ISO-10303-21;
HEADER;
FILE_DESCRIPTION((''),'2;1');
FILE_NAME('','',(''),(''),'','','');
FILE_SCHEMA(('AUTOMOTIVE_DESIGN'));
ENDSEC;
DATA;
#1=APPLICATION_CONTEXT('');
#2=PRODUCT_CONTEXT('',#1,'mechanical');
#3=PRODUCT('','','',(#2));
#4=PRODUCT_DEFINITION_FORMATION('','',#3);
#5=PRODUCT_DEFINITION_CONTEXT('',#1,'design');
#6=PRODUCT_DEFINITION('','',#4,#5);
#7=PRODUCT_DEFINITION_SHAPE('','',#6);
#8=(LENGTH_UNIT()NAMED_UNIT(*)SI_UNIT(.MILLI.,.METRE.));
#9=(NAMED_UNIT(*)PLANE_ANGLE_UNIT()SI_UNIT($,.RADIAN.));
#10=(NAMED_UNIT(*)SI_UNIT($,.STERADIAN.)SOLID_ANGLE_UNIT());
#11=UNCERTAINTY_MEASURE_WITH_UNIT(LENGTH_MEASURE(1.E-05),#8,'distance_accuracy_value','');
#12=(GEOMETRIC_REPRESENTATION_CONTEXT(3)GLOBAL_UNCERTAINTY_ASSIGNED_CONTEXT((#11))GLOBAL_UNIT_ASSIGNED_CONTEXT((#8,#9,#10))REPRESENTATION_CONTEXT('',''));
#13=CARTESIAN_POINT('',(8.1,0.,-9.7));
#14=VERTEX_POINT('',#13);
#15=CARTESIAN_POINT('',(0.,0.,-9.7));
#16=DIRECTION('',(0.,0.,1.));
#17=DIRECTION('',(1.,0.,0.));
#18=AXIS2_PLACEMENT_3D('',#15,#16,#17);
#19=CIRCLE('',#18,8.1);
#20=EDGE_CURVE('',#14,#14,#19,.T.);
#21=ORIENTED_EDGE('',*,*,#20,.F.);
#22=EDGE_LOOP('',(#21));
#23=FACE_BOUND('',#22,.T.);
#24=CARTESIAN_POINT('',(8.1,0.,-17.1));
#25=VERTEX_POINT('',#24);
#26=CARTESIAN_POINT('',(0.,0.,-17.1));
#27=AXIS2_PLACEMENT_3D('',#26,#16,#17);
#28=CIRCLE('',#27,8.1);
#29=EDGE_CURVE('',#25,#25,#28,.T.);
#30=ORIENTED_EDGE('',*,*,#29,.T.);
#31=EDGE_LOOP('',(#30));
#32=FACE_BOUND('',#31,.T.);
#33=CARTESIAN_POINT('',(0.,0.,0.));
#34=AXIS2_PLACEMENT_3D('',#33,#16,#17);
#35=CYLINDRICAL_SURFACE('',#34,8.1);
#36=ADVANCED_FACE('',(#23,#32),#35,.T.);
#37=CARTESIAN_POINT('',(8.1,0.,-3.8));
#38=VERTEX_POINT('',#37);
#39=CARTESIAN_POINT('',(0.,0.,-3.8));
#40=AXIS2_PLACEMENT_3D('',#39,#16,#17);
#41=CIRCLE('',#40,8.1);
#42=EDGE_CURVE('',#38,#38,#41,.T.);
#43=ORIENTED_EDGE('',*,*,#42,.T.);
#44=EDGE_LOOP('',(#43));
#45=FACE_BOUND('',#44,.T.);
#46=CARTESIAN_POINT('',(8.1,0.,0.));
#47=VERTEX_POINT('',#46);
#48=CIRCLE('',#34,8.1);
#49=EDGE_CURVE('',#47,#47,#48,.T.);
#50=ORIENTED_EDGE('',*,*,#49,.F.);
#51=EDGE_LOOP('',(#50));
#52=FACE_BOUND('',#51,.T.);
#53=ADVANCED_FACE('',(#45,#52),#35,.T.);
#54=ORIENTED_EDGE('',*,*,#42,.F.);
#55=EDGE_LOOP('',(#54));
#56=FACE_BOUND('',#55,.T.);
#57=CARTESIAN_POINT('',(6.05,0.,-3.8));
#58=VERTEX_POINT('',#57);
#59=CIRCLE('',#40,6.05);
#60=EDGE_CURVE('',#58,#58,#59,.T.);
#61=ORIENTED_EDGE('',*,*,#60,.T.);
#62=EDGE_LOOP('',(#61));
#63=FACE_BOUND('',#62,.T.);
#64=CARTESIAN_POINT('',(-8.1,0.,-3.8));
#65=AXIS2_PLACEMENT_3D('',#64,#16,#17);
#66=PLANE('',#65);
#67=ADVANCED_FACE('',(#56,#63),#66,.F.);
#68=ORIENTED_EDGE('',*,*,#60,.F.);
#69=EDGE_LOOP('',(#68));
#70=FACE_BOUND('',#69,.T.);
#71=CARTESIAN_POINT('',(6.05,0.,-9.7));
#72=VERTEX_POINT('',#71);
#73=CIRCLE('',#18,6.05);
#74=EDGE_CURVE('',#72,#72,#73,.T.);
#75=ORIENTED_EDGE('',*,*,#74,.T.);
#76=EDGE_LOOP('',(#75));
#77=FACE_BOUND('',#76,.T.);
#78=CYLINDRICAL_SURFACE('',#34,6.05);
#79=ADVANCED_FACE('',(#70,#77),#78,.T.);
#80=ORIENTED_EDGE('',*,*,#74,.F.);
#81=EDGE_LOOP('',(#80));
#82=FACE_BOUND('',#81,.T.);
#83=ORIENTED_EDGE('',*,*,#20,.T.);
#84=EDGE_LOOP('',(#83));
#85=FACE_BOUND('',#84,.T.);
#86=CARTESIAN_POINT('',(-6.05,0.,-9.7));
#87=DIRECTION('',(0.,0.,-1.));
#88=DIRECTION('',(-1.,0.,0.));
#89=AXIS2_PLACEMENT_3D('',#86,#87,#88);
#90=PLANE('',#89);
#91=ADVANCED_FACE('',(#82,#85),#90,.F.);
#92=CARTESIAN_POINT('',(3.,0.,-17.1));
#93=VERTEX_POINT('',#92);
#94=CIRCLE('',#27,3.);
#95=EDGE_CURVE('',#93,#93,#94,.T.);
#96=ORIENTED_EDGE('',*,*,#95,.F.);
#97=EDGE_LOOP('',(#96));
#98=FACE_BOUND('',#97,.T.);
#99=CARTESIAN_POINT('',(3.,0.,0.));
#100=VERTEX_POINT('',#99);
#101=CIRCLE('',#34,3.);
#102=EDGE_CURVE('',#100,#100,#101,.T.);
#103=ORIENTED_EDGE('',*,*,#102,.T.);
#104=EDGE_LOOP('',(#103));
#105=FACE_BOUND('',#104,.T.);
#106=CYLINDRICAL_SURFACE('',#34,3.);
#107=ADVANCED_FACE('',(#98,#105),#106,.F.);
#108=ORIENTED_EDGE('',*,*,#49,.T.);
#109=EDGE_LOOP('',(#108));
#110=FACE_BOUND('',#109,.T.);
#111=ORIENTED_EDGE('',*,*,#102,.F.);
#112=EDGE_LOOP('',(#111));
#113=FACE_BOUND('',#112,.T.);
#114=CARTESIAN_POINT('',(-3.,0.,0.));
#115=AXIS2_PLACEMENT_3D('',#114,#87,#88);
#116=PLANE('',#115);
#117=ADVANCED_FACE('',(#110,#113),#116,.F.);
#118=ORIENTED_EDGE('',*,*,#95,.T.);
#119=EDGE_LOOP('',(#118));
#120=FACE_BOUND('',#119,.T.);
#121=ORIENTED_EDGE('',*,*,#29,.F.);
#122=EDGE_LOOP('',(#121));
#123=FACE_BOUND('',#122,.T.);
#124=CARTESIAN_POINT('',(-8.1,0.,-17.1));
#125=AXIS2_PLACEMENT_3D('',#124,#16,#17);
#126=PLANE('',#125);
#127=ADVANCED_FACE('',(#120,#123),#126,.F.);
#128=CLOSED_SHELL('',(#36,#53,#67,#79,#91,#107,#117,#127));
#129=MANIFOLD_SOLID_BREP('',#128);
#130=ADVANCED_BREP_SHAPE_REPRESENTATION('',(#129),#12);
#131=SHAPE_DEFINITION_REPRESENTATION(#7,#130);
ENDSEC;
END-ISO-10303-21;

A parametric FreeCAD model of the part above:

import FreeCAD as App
import Part
import Sketcher
Q = App.Units.Quantity

doc = App.newDocument("Part")
body = doc.addObject("PartDesign::Body", "Body")

# Sketch on XZ plane
sketch1 = body.newObject("Sketcher::SketchObject", "Sketch")
sketch1.AttachmentSupport = (doc.getObject("XZ_Plane"), [""])
sketch1.MapMode = "FlatFace"
sketch1.addGeometry([
    Part.LineSegment(App.Vector(-8.1, 0, 0), App.Vector(-3, 0, 0)),  # 0
    Part.LineSegment(App.Vector(-3, 0, 0), App.Vector(-3, -17.1, 0)),  # 1
    Part.LineSegment(App.Vector(-3, -17.1, 0), App.Vector(-8.1, -17.1, 0)),  # 2
    Part.LineSegment(App.Vector(-8.1, -17.1, 0), App.Vector(-8.1, -9.7, 0)),  # 3
    Part.LineSegment(App.Vector(-8.1, -9.7, 0), App.Vector(-6.05, -9.7, 0)),  # 4
    Part.LineSegment(App.Vector(-6.05, -9.7, 0), App.Vector(-6.05, -3.8, 0)),  # 5
    Part.LineSegment(App.Vector(-6.05, -3.8, 0), App.Vector(-8.1, -3.8, 0)),  # 6
    Part.LineSegment(App.Vector(-8.1, -3.8, 0), App.Vector(-8.1, 0, 0)),  # 7
], False)
sketch1.addConstraint([
    Sketcher.Constraint("Coincident", 0, 2, 1, 1),
    Sketcher.Constraint("Coincident", 1, 2, 2, 1),
    Sketcher.Constraint("Coincident", 2, 2, 3, 1),
    Sketcher.Constraint("Coincident", 3, 2, 4, 1),
    Sketcher.Constraint("Coincident", 4, 2, 5, 1),
    Sketcher.Constraint("Coincident", 5, 2, 6, 1),
    Sketcher.Constraint("Coincident", 6, 2, 7, 1),
    Sketcher.Constraint("Coincident", 7, 2, 0, 1),
    Sketcher.Constraint("Horizontal", 0),
    Sketcher.Constraint("Vertical", 1),
    Sketcher.Constraint("Horizontal", 2),
    Sketcher.Constraint("Vertical", 3),
    Sketcher.Constraint("Horizontal", 4),
    Sketcher.Constraint("Vertical", 5),
    Sketcher.Constraint("Horizontal", 6),
    Sketcher.Constraint("Vertical", 7),
    Sketcher.Constraint("PointOnObject", 0, 2, -1),
    Sketcher.Constraint("Vertical", 3, 2, 6, 2),
    Sketcher.Constraint("DistanceX", 0, 1, 0, 2, Q("5.1 mm")),
    Sketcher.Constraint("DistanceY", 1, 2, 1, 1, Q("17.1 mm")),
    Sketcher.Constraint("DistanceY", 3, 1, 3, 2, Q("7.4 mm")),
    Sketcher.Constraint("DistanceY", 5, 1, 5, 2, Q("5.9 mm")),
    Sketcher.Constraint("DistanceX", 0, 2, -1, 1, Q("3 mm")),
    Sketcher.Constraint("DistanceX", 4, 1, 4, 2, Q("2.05 mm")),
])
revolution = body.newObject("PartDesign::Revolution", "Revolution")
revolution.Profile = sketch1
revolution.ReferenceAxis = (sketch1, ["V_Axis"])
revolution.Angle = 360

doc.recompute()
